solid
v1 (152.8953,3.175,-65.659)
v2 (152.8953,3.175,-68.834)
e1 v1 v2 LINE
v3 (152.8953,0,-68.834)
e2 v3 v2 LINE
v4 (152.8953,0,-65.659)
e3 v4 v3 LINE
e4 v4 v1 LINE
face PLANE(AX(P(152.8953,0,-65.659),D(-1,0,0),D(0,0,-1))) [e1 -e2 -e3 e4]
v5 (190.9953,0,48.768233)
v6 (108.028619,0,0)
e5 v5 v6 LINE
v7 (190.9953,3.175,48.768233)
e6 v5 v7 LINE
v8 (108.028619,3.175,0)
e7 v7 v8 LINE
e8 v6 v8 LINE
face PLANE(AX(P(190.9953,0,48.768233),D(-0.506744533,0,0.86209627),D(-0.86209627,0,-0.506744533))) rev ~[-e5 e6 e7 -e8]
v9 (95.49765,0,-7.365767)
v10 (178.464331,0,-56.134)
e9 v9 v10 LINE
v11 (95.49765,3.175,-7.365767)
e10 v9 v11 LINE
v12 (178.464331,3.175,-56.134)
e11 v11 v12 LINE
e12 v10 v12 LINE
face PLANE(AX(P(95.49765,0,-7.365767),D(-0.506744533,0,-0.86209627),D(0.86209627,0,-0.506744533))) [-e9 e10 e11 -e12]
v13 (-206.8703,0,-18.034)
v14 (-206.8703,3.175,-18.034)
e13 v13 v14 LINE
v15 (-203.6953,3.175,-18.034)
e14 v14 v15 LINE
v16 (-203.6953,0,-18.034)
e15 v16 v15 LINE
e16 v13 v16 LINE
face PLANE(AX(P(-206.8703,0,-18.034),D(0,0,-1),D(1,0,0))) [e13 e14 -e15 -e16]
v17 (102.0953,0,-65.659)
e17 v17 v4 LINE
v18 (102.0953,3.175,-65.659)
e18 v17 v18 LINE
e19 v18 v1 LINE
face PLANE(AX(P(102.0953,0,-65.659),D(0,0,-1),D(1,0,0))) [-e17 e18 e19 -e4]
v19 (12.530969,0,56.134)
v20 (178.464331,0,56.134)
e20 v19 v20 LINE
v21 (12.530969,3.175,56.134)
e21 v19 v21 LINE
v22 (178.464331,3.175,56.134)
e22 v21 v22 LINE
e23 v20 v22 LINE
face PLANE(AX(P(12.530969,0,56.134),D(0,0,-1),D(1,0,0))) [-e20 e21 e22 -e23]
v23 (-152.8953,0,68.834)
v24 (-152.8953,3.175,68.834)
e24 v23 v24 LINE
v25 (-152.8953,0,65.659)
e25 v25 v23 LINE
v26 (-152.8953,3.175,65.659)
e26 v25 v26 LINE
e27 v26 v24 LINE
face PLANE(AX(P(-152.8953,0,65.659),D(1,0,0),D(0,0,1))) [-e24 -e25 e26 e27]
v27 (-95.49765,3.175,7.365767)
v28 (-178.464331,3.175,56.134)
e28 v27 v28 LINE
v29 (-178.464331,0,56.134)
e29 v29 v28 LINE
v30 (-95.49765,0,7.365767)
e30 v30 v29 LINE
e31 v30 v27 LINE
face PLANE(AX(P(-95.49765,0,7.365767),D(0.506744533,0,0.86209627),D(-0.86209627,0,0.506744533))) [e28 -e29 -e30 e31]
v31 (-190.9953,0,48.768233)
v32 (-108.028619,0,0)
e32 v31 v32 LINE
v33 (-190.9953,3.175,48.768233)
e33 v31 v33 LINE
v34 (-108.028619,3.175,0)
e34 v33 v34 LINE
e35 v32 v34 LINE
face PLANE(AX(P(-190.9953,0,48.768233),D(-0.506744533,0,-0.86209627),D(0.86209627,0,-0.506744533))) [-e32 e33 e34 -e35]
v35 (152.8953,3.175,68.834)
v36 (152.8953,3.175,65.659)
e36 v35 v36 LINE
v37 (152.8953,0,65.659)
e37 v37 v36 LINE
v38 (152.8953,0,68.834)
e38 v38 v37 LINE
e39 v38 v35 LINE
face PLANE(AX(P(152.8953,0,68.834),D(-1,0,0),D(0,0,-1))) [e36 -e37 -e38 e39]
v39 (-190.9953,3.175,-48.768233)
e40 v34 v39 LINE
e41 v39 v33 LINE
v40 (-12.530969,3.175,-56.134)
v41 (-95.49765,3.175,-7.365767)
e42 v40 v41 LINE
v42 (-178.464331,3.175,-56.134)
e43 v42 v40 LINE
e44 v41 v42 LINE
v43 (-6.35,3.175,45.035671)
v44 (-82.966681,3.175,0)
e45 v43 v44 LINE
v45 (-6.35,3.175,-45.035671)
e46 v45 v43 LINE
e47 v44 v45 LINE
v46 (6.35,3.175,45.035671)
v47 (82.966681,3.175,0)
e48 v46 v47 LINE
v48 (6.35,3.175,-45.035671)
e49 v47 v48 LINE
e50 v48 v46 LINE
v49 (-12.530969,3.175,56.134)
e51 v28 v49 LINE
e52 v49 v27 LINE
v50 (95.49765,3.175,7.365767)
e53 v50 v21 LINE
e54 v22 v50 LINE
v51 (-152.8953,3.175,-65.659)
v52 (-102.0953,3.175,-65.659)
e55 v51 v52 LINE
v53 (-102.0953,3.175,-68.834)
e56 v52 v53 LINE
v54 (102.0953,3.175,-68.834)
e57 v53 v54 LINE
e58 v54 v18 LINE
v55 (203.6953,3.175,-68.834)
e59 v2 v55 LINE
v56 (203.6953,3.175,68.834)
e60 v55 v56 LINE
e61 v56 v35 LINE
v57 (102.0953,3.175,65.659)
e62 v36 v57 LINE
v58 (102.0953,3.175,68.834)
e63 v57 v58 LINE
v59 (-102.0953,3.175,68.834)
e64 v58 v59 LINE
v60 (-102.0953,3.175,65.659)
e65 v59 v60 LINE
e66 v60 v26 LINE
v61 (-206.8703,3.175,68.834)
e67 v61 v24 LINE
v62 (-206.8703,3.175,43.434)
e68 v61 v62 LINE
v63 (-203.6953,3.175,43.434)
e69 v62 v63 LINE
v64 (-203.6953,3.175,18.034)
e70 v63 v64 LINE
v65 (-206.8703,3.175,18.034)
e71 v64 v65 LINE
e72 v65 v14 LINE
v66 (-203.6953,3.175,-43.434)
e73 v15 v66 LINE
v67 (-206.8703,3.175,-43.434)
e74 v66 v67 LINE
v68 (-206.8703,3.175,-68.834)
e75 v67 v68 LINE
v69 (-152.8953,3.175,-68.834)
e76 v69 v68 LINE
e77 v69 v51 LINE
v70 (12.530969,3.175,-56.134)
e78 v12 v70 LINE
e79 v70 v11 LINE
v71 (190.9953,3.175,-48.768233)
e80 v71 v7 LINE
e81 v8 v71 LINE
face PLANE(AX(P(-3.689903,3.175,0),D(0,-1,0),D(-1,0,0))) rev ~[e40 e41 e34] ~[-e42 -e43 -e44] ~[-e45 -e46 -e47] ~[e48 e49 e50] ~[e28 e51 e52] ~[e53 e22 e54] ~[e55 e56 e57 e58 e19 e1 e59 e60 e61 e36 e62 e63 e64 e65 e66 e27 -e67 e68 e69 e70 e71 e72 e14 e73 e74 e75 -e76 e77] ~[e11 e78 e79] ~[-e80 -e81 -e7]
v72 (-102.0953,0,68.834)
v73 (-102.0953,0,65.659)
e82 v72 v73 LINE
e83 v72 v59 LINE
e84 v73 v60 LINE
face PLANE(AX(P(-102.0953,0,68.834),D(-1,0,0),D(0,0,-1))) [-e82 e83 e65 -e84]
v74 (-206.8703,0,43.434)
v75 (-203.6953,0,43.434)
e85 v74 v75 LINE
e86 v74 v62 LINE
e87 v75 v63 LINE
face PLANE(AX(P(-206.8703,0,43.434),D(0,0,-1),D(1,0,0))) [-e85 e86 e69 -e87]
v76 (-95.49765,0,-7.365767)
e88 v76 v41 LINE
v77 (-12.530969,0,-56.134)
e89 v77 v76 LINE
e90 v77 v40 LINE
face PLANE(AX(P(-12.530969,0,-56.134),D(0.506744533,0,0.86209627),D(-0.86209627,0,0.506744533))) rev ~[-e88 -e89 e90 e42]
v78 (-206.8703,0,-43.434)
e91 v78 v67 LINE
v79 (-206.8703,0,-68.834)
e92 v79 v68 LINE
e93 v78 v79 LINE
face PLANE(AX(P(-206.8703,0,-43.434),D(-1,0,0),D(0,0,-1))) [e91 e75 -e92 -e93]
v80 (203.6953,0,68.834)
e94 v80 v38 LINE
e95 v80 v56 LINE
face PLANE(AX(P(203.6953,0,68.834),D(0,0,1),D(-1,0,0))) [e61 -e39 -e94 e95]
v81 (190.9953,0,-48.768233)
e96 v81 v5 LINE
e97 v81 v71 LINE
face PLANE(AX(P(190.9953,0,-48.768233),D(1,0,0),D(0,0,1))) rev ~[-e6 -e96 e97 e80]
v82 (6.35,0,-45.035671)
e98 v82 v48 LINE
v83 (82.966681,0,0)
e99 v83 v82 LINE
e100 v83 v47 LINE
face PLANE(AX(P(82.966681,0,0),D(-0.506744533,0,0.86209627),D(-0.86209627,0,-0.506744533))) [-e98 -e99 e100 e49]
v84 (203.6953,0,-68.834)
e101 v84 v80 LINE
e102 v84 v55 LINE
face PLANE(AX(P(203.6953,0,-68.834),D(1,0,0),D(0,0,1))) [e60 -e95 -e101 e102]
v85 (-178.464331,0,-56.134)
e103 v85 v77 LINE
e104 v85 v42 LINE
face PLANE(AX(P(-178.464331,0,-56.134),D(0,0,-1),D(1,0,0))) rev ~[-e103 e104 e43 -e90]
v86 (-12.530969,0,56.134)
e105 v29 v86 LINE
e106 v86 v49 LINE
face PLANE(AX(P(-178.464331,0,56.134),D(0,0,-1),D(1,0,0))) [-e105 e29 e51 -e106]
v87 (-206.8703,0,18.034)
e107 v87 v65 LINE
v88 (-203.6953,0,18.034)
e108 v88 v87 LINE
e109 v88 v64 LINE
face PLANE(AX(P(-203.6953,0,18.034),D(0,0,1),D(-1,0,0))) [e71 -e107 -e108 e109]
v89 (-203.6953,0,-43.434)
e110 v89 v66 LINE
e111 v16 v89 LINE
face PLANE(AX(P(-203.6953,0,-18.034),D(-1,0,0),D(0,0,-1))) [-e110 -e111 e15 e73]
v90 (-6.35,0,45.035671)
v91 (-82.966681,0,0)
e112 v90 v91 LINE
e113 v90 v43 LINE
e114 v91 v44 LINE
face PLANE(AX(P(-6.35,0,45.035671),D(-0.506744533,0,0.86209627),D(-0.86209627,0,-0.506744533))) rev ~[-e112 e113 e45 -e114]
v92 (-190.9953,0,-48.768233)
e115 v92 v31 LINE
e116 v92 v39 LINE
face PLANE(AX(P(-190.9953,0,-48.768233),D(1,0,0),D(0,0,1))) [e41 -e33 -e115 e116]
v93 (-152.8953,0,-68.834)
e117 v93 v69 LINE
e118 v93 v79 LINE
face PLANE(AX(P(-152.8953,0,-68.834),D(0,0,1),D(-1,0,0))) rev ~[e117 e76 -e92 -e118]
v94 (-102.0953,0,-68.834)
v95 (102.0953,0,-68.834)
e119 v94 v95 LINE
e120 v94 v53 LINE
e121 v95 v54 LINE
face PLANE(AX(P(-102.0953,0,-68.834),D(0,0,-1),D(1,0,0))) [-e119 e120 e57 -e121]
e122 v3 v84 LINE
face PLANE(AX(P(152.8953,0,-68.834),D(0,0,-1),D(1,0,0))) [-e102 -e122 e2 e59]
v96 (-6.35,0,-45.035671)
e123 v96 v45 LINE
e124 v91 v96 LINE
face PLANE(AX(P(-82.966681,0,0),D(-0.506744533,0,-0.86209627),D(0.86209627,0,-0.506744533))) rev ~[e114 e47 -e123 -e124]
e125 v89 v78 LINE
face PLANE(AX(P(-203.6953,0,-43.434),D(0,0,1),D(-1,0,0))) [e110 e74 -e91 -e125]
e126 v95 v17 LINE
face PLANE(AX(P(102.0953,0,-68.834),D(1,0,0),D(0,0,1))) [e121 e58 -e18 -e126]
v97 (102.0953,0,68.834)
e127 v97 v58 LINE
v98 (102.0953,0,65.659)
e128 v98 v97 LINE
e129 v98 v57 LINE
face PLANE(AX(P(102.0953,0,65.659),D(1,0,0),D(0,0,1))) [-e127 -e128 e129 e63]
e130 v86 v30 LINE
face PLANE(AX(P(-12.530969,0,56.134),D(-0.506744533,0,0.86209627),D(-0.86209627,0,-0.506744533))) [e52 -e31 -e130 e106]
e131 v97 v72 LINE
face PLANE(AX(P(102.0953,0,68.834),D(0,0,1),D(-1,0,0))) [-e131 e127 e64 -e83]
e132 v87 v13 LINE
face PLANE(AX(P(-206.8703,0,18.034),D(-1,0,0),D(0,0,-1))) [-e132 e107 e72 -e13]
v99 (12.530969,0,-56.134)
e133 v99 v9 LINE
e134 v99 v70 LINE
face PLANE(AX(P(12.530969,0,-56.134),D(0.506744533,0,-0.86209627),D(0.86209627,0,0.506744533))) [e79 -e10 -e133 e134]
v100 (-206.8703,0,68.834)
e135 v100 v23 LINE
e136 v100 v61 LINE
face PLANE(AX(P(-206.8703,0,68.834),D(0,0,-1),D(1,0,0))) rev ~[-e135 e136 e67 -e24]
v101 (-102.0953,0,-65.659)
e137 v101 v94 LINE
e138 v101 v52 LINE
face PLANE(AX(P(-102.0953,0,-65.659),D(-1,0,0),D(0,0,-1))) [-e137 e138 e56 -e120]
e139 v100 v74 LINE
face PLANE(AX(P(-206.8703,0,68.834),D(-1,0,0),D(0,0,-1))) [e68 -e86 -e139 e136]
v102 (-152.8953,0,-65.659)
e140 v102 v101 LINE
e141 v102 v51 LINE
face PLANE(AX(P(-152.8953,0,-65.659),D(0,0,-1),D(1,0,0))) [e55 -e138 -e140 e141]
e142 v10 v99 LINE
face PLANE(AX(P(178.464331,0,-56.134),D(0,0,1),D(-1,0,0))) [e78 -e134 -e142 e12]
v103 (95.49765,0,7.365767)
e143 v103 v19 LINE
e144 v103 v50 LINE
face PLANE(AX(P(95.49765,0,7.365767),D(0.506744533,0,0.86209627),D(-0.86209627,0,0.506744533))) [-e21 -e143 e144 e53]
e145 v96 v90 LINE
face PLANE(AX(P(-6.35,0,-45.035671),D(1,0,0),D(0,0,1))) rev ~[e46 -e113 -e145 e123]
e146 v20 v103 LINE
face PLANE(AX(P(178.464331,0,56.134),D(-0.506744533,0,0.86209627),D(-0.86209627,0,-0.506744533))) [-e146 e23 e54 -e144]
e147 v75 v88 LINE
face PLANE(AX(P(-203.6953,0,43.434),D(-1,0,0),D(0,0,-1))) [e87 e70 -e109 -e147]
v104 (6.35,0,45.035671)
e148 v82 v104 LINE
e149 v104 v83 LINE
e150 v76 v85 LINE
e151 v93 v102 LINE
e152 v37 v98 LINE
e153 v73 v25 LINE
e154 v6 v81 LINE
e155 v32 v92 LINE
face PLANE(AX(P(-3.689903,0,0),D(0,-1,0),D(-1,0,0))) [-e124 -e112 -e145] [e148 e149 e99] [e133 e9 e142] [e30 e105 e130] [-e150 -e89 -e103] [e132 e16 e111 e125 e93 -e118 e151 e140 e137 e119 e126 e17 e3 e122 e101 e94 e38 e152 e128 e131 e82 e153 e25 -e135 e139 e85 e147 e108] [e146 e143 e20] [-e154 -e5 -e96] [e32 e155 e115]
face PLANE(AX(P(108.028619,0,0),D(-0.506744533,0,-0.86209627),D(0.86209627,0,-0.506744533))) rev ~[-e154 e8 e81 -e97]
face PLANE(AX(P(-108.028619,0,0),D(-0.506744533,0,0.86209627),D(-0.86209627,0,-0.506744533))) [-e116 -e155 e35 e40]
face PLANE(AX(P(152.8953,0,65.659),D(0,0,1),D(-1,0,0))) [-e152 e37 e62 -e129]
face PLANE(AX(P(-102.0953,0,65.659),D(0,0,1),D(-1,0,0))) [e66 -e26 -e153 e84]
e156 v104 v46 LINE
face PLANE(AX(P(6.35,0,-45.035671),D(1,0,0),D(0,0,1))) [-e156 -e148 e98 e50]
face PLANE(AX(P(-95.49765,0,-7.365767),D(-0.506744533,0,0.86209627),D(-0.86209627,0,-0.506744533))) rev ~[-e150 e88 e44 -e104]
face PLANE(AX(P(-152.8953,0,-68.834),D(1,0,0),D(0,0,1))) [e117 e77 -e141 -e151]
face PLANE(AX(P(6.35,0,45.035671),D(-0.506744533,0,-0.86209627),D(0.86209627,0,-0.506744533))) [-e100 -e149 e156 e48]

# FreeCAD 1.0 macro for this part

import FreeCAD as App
import Part
import Sketcher
Q = App.Units.Quantity

doc = App.newDocument("Part")
body = doc.addObject("PartDesign::Body", "Body")

# Sketch on XZ plane
sketch1 = doc.addObject("Sketcher::SketchObject", "Sketch")
body.addObject(sketch1)
sketch1.AttachmentSupport = (doc.XZ_Plane, [""])
sketch1.MapMode = "FlatFace"
sketch1.addGeometry([
    Part.LineSegment(App.Vector(-152.9, -68.8, 0), App.Vector(-206.9, -68.8, 0)),  # 0
    Part.LineSegment(App.Vector(-206.9, -68.8, 0), App.Vector(-206.9, -43.4, 0)),  # 1
    Part.LineSegment(App.Vector(-206.9, -43.4, 0), App.Vector(-203.7, -43.4, 0)),  # 2
    Part.LineSegment(App.Vector(-203.7, -43.4, 0), App.Vector(-203.7, -18, 0)),  # 3
    Part.LineSegment(App.Vector(-203.7, -18, 0), App.Vector(-206.9, -18, 0)),  # 4
    Part.LineSegment(App.Vector(-206.9, -18, 0), App.Vector(-206.9, 18, 0)),  # 5
    Part.LineSegment(App.Vector(-206.9, 18, 0), App.Vector(-203.7, 18, 0)),  # 6
    Part.LineSegment(App.Vector(-203.7, 18, 0), App.Vector(-203.7, 43.4, 0)),  # 7
    Part.LineSegment(App.Vector(-203.7, 43.4, 0), App.Vector(-206.9, 43.4, 0)),  # 8
    Part.LineSegment(App.Vector(-206.9, 43.4, 0), App.Vector(-206.9, 68.8, 0)),  # 9
    Part.LineSegment(App.Vector(-206.9, 68.8, 0), App.Vector(-152.9, 68.8, 0)),  # 10
    Part.LineSegment(App.Vector(-152.9, 68.8, 0), App.Vector(-152.9, 65.7, 0)),  # 11
    Part.LineSegment(App.Vector(-152.9, 65.7, 0), App.Vector(-102.1, 65.7, 0)),  # 12
    Part.LineSegment(App.Vector(-102.1, 65.7, 0), App.Vector(-102.1, 68.8, 0)),  # 13
    Part.LineSegment(App.Vector(-102.1, 68.8, 0), App.Vector(102.1, 68.8, 0)),  # 14
    Part.LineSegment(App.Vector(102.1, 68.8, 0), App.Vector(102.1, 65.7, 0)),  # 15
    Part.LineSegment(App.Vector(102.1, 65.7, 0), App.Vector(152.9, 65.7, 0)),  # 16
    Part.LineSegment(App.Vector(152.9, 65.7, 0), App.Vector(152.9, 68.8, 0)),  # 17
    Part.LineSegment(App.Vector(152.9, 68.8, 0), App.Vector(203.7, 68.8, 0)),  # 18
    Part.LineSegment(App.Vector(203.7, 68.8, 0), App.Vector(203.7, -68.8, 0)),  # 19
    Part.LineSegment(App.Vector(203.7, -68.8, 0), App.Vector(152.9, -68.8, 0)),  # 20
    Part.LineSegment(App.Vector(152.9, -68.8, 0), App.Vector(152.9, -65.7, 0)),  # 21
    Part.LineSegment(App.Vector(152.9, -65.7, 0), App.Vector(102.1, -65.7, 0)),  # 22
    Part.LineSegment(App.Vector(102.1, -65.7, 0), App.Vector(102.1, -68.8, 0)),  # 23
    Part.LineSegment(App.Vector(102.1, -68.8, 0), App.Vector(-102.1, -68.8, 0)),  # 24
    Part.LineSegment(App.Vector(-102.1, -68.8, 0), App.Vector(-102.1, -65.7, 0)),  # 25
    Part.LineSegment(App.Vector(-102.1, -65.7, 0), App.Vector(-152.9, -65.7, 0)),  # 26
    Part.LineSegment(App.Vector(-152.9, -65.7, 0), App.Vector(-152.9, -68.8, 0)),  # 27
    Part.LineSegment(App.Vector(12.5, 56.1, 0), App.Vector(95.5, 7.4, 0)),  # 28
    Part.LineSegment(App.Vector(95.5, 7.4, 0), App.Vector(178.5, 56.1, 0)),  # 29
    Part.LineSegment(App.Vector(178.5, 56.1, 0), App.Vector(12.5, 56.1, 0)),  # 30
    Part.LineSegment(App.Vector(-178.5, 56.1, 0), App.Vector(-95.5, 7.4, 0)),  # 31
    Part.LineSegment(App.Vector(-95.5, 7.4, 0), App.Vector(-12.5, 56.1, 0)),  # 32
    Part.LineSegment(App.Vector(-12.5, 56.1, 0), App.Vector(-178.5, 56.1, 0)),  # 33
    Part.LineSegment(App.Vector(191, -48.8, 0), App.Vector(191, 48.8, 0)),  # 34
    Part.LineSegment(App.Vector(191, 48.8, 0), App.Vector(108, 0, 0)),  # 35
    Part.LineSegment(App.Vector(108, 0, 0), App.Vector(191, -48.8, 0)),  # 36
    Part.LineSegment(App.Vector(6.3, -45, 0), App.Vector(83, 0, 0)),  # 37
    Part.LineSegment(App.Vector(83, 0, 0), App.Vector(6.3, 45, 0)),  # 38
    Part.LineSegment(App.Vector(6.3, 45, 0), App.Vector(6.3, -45, 0)),  # 39
    Part.LineSegment(App.Vector(12.5, -56.1, 0), App.Vector(178.5, -56.1, 0)),  # 40
    Part.LineSegment(App.Vector(178.5, -56.1, 0), App.Vector(95.5, -7.4, 0)),  # 41
    Part.LineSegment(App.Vector(95.5, -7.4, 0), App.Vector(12.5, -56.1, 0)),  # 42
    Part.LineSegment(App.Vector(-6.3, -45, 0), App.Vector(-6.3, 45, 0)),  # 43
    Part.LineSegment(App.Vector(-6.3, 45, 0), App.Vector(-83, 0, 0)),  # 44
    Part.LineSegment(App.Vector(-83, 0, 0), App.Vector(-6.3, -45, 0)),  # 45
    Part.LineSegment(App.Vector(-191, -48.8, 0), App.Vector(-108, 0, 0)),  # 46
    Part.LineSegment(App.Vector(-108, 0, 0), App.Vector(-191, 48.8, 0)),  # 47
    Part.LineSegment(App.Vector(-191, 48.8, 0), App.Vector(-191, -48.8, 0)),  # 48
    Part.LineSegment(App.Vector(-178.5, -56.1, 0), App.Vector(-12.5, -56.1, 0)),  # 49
    Part.LineSegment(App.Vector(-12.5, -56.1, 0), App.Vector(-95.5, -7.4, 0)),  # 50
    Part.LineSegment(App.Vector(-95.5, -7.4, 0), App.Vector(-178.5, -56.1, 0)),  # 51
], False)
sketch1.addConstraint([
    Sketcher.Constraint("Coincident", 0, 2, 1, 1),
    Sketcher.Constraint("Coincident", 1, 2, 2, 1),
    Sketcher.Constraint("Coincident", 2, 2, 3, 1),
    Sketcher.Constraint("Coincident", 3, 2, 4, 1),
    Sketcher.Constraint("Coincident", 4, 2, 5, 1),
    Sketcher.Constraint("Coincident", 5, 2, 6, 1),
    Sketcher.Constraint("Coincident", 6, 2, 7, 1),
    Sketcher.Constraint("Coincident", 7, 2, 8, 1),
    Sketcher.Constraint("Coincident", 8, 2, 9, 1),
    Sketcher.Constraint("Coincident", 9, 2, 10, 1),
    Sketcher.Constraint("Coincident", 10, 2, 11, 1),
    Sketcher.Constraint("Coincident", 11, 2, 12, 1),
    Sketcher.Constraint("Coincident", 12, 2, 13, 1),
    Sketcher.Constraint("Coincident", 13, 2, 14, 1),
    Sketcher.Constraint("Coincident", 14, 2, 15, 1),
    Sketcher.Constraint("Coincident", 15, 2, 16, 1),
    Sketcher.Constraint("Coincident", 16, 2, 17, 1),
    Sketcher.Constraint("Coincident", 17, 2, 18, 1),
    Sketcher.Constraint("Coincident", 18, 2, 19, 1),
    Sketcher.Constraint("Coincident", 19, 2, 20, 1),
    Sketcher.Constraint("Coincident", 20, 2, 21, 1),
    Sketcher.Constraint("Coincident", 21, 2, 22, 1),
    Sketcher.Constraint("Coincident", 22, 2, 23, 1),
    Sketcher.Constraint("Coincident", 23, 2, 24, 1),
    Sketcher.Constraint("Coincident", 24, 2, 25, 1),
    Sketcher.Constraint("Coincident", 25, 2, 26, 1),
    Sketcher.Constraint("Coincident", 26, 2, 27, 1),
    Sketcher.Constraint("Coincident", 27, 2, 0, 1),
    Sketcher.Constraint("Coincident", 28, 2, 29, 1),
    Sketcher.Constraint("Coincident", 29, 2, 30, 1),
    Sketcher.Constraint("Coincident", 30, 2, 28, 1),
    Sketcher.Constraint("Coincident", 31, 2, 32, 1),
    Sketcher.Constraint("Coincident", 32, 2, 33, 1),
    Sketcher.Constraint("Coincident", 33, 2, 31, 1),
    Sketcher.Constraint("Coincident", 34, 2, 35, 1),
    Sketcher.Constraint("Coincident", 35, 2, 36, 1),
    Sketcher.Constraint("Coincident", 36, 2, 34, 1),
    Sketcher.Constraint("Coincident", 37, 2, 38, 1),
    Sketcher.Constraint("Coincident", 38, 2, 39, 1),
    Sketcher.Constraint("Coincident", 39, 2, 37, 1),
    Sketcher.Constraint("Coincident", 40, 2, 41, 1),
    Sketcher.Constraint("Coincident", 41, 2, 42, 1),
    Sketcher.Constraint("Coincident", 42, 2, 40, 1),
    Sketcher.Constraint("Coincident", 43, 2, 44, 1),
    Sketcher.Constraint("Coincident", 44, 2, 45, 1),
    Sketcher.Constraint("Coincident", 45, 2, 43, 1),
    Sketcher.Constraint("Coincident", 46, 2, 47, 1),
    Sketcher.Constraint("Coincident", 47, 2, 48, 1),
    Sketcher.Constraint("Coincident", 48, 2, 46, 1),
    Sketcher.Constraint("Coincident", 49, 2, 50, 1),
    Sketcher.Constraint("Coincident", 50, 2, 51, 1),
    Sketcher.Constraint("Coincident", 51, 2, 49, 1),
    Sketcher.Constraint("Horizontal", 0),
    Sketcher.Constraint("Vertical", 1),
    Sketcher.Constraint("Horizontal", 2),
    Sketcher.Constraint("Vertical", 3),
    Sketcher.Constraint("Horizontal", 4),
    Sketcher.Constraint("Vertical", 5),
    Sketcher.Constraint("Horizontal", 6),
    Sketcher.Constraint("Vertical", 7),
    Sketcher.Constraint("Horizontal", 8),
    Sketcher.Constraint("Vertical", 9),
    Sketcher.Constraint("Horizontal", 10),
    Sketcher.Constraint("Vertical", 11),
    Sketcher.Constraint("Horizontal", 12),
    Sketcher.Constraint("Vertical", 13),
    Sketcher.Constraint("Horizontal", 14),
    Sketcher.Constraint("Vertical", 15),
    Sketcher.Constraint("Horizontal", 16),
    Sketcher.Constraint("Vertical", 17),
    Sketcher.Constraint("Horizontal", 18),
    Sketcher.Constraint("Vertical", 19),
    Sketcher.Constraint("Horizontal", 20),
    Sketcher.Constraint("Vertical", 21),
    Sketcher.Constraint("Horizontal", 22),
    Sketcher.Constraint("Vertical", 23),
    Sketcher.Constraint("Horizontal", 24),
    Sketcher.Constraint("Vertical", 25),
    Sketcher.Constraint("Horizontal", 26),
    Sketcher.Constraint("Vertical", 27),
    Sketcher.Constraint("Horizontal", 30),
    Sketcher.Constraint("Horizontal", 33),
    Sketcher.Constraint("Vertical", 34),
    Sketcher.Constraint("Vertical", 39),
    Sketcher.Constraint("Horizontal", 40),
    Sketcher.Constraint("Vertical", 43),
    Sketcher.Constraint("Vertical", 48),
    Sketcher.Constraint("Horizontal", 49),
    Sketcher.Constraint("Symmetric", 10, 2, 20, 2, -1, 1),
    Sketcher.Constraint("Symmetric", 12, 2, 22, 2, -1, 1),
    Sketcher.Constraint("Symmetric", 14, 2, 24, 2, -1, 1),
    Sketcher.Constraint("Symmetric", 16, 2, 26, 2, -1, 1),
    Sketcher.Constraint("Symmetric", 33, 2, 40, 2, -1, 1),
    Sketcher.Constraint("Symmetric", 31, 2, 41, 2, -1, 1),
    Sketcher.Constraint("Symmetric", 39, 2, 43, 2, -1, 1),
    Sketcher.Constraint("Symmetric", 37, 2, 44, 2, -1, 1),
    Sketcher.Constraint("Symmetric", 35, 2, 46, 2, -1, 1),
    Sketcher.Constraint("Symmetric", 36, 2, 47, 2, -1, 1),
    Sketcher.Constraint("Symmetric", 30, 2, 49, 2, -1, 1),
    Sketcher.Constraint("Symmetric", 28, 2, 50, 2, -1, 1),
    Sketcher.Constraint("Symmetric", 12, 2, 15, 2, -2),
    Sketcher.Constraint("Symmetric", 10, 2, 17, 2, -2),
    Sketcher.Constraint("Symmetric", 28, 2, 31, 2, -2),
    Sketcher.Constraint("Symmetric", 30, 2, 32, 2, -2),
    Sketcher.Constraint("Symmetric", 3, 2, 6, 2, -1),
    Sketcher.Constraint("Symmetric", 1, 2, 8, 2, -1),
    Sketcher.Constraint("PointOnObject", 35, 2, -1),
    Sketcher.Constraint("PointOnObject", 37, 2, -1),
    Sketcher.Constraint("Parallel", 28, 31),
    Sketcher.Constraint("Parallel", 29, 32),
    Sketcher.Constraint("Parallel", 32, 35),
    Sketcher.Constraint("Parallel", 31, 36),
    Sketcher.Constraint("Parallel", 35, 37),
    Sketcher.Constraint("Parallel", 36, 38),
    Sketcher.Constraint("Parallel", 37, 42),
    Sketcher.Constraint("Parallel", 41, 45),
    Sketcher.Constraint("Parallel", 44, 46),
    Sketcher.Constraint("Parallel", 46, 51),
    Sketcher.Constraint("Horizontal", 10, 2, 13, 2),
    Sketcher.Constraint("Horizontal", 0, 2, 19, 2),
    Sketcher.Constraint("Vertical", 1, 2, 4, 2),
    Sketcher.Constraint("Equal", 16, 18),
    Sketcher.Constraint("Equal", 1, 3),
    Sketcher.Constraint("Equal", 8, 11),
    Sketcher.Constraint("Equal", 32, 35),
    Sketcher.Constraint("DistanceX", 12, 1, 12, 2, Q("2 in")),
    Sketcher.Constraint("DistanceY", 1, 1, 1, 2, Q("1 in")),
    Sketcher.Constraint("DistanceX", 7, 2, 10, 2, Q("2 in")),
    Sketcher.Constraint("DistanceY", 5, 1, 5, 2, Q("1.42 in")),
    Sketcher.Constraint("DistanceY", 29, 2, 18, 2, Q("0.5 in")),
    Sketcher.Constraint("DistanceX", 34, 2, 18, 2, Q("0.5 in")),
    Sketcher.Constraint("DistanceX", 43, 2, 38, 2, Q("0.5 in")),
    Sketcher.Constraint("DistanceX", 0, 2, 0, 1, Q("2.125 in")),
    Sketcher.Constraint("DistanceX", 14, 1, 14, 2, Q("8.039 in")),
    Sketcher.Constraint("Distance", 28, Q("96.238302 mm")),
    Sketcher.Constraint("DistanceX", 30, 2, 30, 1, Q("165.933362 mm")),
    Sketcher.Constraint("DistanceY", 39, 2, 39, 1, Q("90.071343 mm")),
    Sketcher.Constraint("DistanceX", -1, 1, 28, 2, Q("95.49765 mm")),
])
pad1 = doc.addObject("PartDesign::Pad", "Pad")
body.addObject(pad1)
pad1.Profile = sketch1
pad1.Length = Q("0.125 in")
pad1.Reversed = True

doc.recompute()
